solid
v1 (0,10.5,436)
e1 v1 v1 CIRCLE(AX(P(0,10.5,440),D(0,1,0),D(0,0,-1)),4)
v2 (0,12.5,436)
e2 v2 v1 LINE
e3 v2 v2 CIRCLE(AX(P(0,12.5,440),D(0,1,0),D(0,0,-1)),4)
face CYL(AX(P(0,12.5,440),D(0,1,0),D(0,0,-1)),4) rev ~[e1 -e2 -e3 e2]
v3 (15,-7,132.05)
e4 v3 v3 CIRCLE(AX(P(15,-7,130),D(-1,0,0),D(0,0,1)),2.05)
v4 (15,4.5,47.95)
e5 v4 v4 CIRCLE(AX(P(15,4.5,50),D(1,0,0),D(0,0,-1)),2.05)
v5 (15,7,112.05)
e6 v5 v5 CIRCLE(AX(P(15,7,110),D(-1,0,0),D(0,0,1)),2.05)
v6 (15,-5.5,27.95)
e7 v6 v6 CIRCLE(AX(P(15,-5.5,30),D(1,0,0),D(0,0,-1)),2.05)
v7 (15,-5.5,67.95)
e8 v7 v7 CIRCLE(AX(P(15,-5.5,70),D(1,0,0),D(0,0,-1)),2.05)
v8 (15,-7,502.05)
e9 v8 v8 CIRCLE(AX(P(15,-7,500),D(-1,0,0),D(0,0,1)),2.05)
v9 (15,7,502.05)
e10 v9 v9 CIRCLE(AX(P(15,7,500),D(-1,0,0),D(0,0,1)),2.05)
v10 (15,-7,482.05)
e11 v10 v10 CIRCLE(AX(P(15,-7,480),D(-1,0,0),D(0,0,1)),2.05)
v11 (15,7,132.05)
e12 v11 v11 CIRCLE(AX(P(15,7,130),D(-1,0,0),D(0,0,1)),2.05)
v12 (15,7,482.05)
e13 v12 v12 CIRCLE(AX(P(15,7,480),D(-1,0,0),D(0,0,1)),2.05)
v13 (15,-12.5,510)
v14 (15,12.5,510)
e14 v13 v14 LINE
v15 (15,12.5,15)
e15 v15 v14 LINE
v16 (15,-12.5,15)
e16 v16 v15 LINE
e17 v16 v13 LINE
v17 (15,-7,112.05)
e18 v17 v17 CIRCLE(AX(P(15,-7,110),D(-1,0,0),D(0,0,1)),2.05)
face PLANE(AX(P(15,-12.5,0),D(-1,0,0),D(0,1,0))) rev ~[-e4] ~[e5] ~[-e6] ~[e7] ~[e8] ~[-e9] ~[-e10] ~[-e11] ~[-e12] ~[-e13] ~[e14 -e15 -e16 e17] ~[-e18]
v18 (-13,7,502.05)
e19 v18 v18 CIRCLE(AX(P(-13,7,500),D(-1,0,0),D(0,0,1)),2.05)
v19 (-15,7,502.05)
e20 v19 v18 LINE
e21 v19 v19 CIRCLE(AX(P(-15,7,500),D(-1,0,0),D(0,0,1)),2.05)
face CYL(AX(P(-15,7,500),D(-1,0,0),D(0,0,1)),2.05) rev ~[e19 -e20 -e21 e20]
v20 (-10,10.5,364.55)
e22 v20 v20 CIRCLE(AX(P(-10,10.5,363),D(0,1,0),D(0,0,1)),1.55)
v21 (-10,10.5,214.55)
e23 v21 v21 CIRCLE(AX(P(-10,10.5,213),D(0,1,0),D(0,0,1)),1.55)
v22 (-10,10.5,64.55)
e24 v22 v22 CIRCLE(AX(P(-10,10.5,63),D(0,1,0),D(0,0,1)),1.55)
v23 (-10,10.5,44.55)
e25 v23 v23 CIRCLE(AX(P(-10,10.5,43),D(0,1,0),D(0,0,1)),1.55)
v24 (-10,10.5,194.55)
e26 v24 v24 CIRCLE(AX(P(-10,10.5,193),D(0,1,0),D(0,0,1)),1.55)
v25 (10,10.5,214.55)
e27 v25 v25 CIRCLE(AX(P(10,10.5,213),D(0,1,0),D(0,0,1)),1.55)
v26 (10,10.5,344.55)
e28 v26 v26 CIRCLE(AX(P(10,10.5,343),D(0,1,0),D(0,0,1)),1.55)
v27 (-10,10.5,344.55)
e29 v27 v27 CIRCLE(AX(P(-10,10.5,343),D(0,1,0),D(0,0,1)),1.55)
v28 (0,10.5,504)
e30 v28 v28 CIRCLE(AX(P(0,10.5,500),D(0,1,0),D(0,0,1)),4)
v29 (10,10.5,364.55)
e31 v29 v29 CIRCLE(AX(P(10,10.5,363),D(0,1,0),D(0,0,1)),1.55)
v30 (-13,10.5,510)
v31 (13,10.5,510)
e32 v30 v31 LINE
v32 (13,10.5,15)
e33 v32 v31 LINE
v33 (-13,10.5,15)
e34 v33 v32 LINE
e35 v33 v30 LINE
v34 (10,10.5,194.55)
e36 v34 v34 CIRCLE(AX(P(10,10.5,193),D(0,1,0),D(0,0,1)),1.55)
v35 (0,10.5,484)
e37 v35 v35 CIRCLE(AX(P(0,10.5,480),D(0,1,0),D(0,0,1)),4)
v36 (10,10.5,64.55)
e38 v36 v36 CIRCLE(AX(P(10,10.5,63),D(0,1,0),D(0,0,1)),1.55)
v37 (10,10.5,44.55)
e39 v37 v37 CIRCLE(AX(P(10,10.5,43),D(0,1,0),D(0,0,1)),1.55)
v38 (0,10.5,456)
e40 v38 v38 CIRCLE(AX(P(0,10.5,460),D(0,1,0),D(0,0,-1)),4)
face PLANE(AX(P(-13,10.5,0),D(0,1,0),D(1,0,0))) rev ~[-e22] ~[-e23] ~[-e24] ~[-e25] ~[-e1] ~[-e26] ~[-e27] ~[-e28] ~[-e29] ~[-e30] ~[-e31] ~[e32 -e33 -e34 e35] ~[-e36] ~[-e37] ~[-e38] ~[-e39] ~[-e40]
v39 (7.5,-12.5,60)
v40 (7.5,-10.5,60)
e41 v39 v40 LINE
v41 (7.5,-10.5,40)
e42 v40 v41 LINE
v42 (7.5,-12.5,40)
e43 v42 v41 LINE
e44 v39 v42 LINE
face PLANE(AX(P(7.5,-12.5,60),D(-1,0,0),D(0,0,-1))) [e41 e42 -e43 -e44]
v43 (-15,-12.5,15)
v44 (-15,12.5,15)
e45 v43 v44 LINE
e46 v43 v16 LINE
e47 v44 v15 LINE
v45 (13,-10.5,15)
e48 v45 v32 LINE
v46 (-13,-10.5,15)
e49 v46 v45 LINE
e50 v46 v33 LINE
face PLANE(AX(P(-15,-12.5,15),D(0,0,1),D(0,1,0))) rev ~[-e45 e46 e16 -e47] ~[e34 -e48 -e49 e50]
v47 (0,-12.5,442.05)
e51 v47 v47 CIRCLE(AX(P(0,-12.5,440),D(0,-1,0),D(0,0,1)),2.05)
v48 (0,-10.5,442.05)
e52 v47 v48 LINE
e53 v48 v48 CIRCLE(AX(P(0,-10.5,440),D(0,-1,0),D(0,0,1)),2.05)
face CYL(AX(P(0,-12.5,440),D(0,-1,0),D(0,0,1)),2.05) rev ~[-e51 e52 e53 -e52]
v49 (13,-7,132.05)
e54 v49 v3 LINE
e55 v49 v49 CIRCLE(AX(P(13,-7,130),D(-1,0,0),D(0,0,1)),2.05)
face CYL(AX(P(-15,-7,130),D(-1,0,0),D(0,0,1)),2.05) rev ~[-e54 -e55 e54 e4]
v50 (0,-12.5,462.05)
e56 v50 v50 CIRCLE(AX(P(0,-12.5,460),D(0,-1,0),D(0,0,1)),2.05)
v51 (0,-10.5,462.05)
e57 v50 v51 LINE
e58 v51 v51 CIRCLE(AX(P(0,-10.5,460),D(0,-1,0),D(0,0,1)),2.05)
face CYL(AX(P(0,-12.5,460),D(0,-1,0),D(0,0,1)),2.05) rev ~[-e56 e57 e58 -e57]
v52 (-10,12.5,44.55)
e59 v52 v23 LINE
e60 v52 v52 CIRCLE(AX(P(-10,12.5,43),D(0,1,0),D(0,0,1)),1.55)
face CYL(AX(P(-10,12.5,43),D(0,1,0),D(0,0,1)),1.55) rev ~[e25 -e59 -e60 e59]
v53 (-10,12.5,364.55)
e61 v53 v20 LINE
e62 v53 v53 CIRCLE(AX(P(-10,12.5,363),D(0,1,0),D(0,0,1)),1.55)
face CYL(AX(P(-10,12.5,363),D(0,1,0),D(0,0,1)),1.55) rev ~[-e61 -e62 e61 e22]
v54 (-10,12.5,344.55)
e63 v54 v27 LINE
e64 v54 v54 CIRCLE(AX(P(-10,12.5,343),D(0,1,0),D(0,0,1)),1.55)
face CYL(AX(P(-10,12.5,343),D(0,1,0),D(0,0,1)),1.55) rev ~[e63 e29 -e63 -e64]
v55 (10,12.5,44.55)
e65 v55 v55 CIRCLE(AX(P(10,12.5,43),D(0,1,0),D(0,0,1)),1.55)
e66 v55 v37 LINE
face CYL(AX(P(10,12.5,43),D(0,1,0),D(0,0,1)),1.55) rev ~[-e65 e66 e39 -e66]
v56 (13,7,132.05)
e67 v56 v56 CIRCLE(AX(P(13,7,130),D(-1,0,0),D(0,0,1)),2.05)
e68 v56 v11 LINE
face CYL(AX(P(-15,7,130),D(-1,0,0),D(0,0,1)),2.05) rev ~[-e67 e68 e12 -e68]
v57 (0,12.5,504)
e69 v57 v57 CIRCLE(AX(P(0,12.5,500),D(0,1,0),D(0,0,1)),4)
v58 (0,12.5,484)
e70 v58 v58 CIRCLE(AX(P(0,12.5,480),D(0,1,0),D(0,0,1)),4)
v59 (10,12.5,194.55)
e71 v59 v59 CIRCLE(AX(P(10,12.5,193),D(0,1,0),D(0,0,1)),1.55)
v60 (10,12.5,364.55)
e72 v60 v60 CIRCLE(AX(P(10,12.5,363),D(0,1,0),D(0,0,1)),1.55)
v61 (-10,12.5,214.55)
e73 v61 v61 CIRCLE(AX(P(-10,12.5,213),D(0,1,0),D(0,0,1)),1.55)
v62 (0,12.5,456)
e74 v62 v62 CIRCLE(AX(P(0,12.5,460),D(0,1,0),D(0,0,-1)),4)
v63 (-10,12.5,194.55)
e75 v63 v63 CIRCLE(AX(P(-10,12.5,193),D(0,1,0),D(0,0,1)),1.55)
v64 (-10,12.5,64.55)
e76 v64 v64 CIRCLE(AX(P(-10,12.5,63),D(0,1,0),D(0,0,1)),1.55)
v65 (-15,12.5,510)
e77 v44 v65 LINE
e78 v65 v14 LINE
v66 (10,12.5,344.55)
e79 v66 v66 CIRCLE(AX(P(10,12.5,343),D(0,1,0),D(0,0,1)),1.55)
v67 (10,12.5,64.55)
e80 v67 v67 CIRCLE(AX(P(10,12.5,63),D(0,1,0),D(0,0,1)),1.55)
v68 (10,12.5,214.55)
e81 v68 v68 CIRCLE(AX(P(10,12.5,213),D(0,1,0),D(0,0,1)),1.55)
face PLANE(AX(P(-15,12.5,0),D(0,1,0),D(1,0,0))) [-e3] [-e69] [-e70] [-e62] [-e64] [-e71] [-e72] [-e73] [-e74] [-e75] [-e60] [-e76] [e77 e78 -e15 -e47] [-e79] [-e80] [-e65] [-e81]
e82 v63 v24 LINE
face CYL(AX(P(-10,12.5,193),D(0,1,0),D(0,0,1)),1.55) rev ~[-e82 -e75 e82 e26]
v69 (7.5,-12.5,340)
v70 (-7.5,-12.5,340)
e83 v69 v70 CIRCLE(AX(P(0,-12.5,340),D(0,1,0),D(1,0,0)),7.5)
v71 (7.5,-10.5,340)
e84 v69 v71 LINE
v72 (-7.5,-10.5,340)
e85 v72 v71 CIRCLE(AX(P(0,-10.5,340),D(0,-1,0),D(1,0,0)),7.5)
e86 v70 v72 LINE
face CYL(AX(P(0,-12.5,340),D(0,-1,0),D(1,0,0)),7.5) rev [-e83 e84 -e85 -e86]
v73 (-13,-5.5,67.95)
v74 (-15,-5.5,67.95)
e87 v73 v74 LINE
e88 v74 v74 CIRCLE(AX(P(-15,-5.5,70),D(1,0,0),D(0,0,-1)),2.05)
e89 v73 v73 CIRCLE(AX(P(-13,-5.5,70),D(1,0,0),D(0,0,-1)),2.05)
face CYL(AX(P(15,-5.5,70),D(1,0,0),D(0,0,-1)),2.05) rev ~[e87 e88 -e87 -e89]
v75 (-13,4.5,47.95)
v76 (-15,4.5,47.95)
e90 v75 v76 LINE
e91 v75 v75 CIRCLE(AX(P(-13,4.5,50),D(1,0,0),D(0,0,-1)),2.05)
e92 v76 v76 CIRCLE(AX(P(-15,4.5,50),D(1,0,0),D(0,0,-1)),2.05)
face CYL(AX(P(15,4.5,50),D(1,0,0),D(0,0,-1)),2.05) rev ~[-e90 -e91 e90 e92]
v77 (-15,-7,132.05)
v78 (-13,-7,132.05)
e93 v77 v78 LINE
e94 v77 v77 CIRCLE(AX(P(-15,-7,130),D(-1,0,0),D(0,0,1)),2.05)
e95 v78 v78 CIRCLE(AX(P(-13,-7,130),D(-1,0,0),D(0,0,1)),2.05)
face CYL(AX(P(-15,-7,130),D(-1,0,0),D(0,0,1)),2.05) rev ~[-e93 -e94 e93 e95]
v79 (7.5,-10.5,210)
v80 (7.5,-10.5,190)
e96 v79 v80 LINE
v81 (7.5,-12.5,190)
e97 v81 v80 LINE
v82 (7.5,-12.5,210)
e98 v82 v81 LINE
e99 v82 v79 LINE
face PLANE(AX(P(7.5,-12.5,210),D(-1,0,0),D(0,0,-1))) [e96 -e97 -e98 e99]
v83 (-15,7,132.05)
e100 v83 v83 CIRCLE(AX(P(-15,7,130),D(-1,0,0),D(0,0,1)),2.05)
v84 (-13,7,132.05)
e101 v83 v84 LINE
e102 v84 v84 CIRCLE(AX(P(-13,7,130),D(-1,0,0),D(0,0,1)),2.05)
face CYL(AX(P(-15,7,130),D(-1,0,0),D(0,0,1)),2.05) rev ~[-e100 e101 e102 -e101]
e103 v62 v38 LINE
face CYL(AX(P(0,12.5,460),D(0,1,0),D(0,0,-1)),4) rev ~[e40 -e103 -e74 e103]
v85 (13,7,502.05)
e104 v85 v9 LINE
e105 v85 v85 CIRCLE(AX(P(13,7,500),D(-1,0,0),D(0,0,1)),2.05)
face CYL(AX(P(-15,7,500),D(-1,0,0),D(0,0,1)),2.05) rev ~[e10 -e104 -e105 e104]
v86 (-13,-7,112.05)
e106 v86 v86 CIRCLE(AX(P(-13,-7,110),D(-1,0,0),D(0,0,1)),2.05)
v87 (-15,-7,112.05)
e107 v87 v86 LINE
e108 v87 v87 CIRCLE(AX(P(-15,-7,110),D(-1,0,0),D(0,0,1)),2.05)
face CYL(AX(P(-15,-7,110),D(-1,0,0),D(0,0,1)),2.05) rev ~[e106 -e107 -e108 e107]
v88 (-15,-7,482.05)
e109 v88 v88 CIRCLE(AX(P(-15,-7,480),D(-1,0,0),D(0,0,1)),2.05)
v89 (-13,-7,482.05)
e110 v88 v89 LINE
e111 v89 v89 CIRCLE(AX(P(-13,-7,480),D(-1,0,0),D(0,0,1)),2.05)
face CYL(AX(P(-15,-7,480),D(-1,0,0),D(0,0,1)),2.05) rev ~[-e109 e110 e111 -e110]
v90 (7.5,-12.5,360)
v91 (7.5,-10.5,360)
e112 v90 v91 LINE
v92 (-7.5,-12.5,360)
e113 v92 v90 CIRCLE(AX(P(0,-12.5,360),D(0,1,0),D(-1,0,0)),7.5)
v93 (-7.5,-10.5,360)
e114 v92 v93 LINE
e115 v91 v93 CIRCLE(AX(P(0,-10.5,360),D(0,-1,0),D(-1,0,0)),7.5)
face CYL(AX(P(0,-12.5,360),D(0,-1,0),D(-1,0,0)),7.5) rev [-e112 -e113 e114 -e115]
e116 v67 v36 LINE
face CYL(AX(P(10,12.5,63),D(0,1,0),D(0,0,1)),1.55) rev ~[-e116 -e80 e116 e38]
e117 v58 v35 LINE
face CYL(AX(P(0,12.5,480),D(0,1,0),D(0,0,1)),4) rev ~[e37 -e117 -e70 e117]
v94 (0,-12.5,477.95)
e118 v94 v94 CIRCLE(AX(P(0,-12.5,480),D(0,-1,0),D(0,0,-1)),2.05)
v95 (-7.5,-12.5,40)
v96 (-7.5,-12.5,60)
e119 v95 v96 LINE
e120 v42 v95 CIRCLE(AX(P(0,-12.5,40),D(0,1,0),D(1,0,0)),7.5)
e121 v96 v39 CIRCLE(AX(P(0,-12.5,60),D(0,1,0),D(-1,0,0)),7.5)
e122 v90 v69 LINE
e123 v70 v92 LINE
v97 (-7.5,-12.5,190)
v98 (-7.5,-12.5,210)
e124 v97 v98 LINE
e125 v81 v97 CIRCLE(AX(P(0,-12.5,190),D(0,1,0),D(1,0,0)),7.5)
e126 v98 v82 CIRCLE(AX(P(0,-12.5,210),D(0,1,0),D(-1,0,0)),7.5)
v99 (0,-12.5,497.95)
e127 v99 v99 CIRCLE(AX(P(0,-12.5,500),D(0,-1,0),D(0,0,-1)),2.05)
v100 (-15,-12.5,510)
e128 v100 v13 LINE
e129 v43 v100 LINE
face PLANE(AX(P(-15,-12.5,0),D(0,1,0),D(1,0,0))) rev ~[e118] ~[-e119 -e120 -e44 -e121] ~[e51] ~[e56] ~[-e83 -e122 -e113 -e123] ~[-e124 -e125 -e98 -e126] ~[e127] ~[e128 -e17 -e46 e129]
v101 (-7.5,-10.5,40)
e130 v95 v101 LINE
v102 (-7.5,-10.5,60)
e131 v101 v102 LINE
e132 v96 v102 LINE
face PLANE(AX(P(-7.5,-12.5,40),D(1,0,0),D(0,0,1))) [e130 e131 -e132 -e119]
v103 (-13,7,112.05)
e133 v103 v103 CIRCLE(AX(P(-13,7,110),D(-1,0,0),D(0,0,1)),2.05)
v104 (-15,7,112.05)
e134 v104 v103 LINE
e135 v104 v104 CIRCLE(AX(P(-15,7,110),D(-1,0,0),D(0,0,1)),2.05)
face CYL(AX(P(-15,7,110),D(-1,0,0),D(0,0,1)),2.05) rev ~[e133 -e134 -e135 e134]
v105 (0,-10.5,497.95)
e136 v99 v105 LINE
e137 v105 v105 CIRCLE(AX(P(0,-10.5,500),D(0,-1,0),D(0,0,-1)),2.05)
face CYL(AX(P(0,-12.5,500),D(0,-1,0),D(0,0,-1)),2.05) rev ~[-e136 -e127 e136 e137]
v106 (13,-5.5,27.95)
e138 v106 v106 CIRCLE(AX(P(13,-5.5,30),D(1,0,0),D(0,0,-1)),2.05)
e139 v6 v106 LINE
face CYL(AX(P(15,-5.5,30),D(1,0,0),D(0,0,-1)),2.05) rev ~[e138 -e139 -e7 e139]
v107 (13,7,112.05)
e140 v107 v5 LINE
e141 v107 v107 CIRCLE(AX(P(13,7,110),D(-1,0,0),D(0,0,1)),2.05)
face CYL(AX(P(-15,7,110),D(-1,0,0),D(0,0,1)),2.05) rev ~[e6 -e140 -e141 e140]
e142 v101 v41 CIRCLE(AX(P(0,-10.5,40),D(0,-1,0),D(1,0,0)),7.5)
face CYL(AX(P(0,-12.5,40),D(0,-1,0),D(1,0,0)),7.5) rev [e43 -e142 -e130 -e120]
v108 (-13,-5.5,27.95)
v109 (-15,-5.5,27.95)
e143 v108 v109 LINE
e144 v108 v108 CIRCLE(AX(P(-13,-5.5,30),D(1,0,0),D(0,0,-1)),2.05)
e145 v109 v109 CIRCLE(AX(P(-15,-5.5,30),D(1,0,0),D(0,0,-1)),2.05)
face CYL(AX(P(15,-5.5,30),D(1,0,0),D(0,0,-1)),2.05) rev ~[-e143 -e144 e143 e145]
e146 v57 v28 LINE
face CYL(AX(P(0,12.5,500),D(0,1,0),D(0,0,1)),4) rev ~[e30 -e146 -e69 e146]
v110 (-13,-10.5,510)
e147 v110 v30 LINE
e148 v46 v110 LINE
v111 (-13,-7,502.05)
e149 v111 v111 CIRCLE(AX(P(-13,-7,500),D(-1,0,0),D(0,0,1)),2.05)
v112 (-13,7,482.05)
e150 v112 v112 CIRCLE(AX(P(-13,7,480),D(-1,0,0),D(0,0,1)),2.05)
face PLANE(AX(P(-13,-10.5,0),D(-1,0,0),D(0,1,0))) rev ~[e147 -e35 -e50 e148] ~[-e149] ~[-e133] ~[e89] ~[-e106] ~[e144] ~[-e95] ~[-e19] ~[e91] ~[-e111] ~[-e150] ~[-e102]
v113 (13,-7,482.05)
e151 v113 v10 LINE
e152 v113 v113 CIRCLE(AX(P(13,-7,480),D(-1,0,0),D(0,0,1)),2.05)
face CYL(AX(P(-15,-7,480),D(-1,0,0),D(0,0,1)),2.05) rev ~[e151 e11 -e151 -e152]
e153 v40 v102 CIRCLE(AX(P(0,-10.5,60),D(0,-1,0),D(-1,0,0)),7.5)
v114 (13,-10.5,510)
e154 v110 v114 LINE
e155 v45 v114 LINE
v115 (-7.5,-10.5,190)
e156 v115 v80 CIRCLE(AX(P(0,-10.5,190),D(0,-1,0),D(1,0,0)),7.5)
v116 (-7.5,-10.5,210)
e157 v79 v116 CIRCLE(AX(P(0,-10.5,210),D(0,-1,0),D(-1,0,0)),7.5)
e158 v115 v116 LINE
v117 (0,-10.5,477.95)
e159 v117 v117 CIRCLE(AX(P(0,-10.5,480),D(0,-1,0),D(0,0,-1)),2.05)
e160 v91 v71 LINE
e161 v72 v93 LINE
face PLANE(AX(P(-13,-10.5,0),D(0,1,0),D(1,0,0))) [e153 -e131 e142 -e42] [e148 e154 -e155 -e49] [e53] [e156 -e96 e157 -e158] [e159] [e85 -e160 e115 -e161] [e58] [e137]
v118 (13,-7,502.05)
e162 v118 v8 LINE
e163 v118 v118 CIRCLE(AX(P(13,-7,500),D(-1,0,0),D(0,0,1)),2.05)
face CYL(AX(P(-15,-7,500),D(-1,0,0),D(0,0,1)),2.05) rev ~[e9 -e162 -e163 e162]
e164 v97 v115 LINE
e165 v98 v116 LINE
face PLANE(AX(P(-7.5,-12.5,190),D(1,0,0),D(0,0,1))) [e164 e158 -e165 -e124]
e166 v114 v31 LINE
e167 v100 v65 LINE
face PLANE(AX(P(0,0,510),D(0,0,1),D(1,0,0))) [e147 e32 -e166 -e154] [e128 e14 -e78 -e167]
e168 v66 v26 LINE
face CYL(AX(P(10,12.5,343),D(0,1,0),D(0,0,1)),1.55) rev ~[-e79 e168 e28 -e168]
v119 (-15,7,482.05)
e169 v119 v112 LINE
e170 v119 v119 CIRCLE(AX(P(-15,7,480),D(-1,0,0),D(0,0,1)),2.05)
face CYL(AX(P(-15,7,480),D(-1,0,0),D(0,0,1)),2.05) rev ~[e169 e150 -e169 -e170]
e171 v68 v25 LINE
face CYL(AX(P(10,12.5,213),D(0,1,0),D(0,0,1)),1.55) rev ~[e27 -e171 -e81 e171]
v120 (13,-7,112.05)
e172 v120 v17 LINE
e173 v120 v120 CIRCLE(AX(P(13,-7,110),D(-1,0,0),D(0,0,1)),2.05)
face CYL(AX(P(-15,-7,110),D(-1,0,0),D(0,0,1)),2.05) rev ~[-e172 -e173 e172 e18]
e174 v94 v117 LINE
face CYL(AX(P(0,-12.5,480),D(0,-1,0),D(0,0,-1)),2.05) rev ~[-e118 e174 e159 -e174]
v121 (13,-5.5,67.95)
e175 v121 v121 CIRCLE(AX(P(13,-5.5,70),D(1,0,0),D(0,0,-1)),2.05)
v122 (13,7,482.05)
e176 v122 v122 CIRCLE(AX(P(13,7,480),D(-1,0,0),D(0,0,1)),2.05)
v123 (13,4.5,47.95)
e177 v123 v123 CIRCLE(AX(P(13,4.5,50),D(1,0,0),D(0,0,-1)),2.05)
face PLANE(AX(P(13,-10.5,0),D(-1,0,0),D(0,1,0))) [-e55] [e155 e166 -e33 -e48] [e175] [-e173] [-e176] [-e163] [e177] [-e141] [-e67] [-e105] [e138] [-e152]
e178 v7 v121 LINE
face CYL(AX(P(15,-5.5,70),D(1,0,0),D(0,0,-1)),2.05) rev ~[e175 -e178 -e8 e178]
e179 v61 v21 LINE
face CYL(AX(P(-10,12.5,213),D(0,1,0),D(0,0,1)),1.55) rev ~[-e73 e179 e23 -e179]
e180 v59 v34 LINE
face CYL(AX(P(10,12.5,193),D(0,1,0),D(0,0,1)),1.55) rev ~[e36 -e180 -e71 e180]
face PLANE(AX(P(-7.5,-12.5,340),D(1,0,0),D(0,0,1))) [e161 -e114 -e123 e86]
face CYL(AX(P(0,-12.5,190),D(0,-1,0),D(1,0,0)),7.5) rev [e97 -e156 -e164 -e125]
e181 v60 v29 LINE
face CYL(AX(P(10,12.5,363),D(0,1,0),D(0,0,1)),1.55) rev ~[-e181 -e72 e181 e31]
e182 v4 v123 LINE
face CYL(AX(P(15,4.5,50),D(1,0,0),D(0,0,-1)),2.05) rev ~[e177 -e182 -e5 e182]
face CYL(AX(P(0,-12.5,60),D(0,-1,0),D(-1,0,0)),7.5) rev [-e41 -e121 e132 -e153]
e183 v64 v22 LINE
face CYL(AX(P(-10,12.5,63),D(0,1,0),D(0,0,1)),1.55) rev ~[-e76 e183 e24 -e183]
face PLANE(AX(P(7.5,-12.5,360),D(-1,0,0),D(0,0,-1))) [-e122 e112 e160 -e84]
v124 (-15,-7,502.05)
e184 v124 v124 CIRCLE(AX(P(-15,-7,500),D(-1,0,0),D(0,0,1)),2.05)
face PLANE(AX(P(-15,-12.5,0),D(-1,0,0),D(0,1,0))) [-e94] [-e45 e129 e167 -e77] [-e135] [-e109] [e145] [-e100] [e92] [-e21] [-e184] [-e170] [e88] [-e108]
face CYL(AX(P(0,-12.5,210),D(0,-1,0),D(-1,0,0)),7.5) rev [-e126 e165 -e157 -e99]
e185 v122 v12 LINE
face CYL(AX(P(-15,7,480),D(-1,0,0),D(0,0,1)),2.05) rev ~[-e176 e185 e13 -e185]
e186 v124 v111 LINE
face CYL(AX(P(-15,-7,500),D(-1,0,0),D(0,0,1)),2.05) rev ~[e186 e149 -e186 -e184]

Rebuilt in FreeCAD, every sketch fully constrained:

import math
import FreeCAD as App
import Part
import Sketcher
from FreeCAD import Vector

doc = App.newDocument("Part")
body = doc.addObject("PartDesign::Body", "Body")

# Sketch on XY plane
sketch1 = doc.addObject("Sketcher::SketchObject", "Sketch")
body.addObject(sketch1)
sketch1.AttachmentSupport = (doc.XY_Plane, [""])
sketch1.MapMode = "FlatFace"
sketch1.addGeometry(Part.LineSegment(Vector(-15, 12, 0), Vector(-15, -12, 0)), False)
sketch1.addGeometry(Part.LineSegment(Vector(-15, -12, 0), Vector(15, -12, 0)), False)
sketch1.addGeometry(Part.LineSegment(Vector(15, -12, 0), Vector(15, 12, 0)), False)
sketch1.addGeometry(Part.LineSegment(Vector(15, 12, 0), Vector(-15, 12, 0)), False)
sketch1.addGeometry(Part.LineSegment(Vector(13, -10, 0), Vector(-13, -10, 0)), False)
sketch1.addGeometry(Part.LineSegment(Vector(-13, -10, 0), Vector(-13, 10, 0)), False)
sketch1.addGeometry(Part.LineSegment(Vector(-13, 10, 0), Vector(13, 10, 0)), False)
sketch1.addGeometry(Part.LineSegment(Vector(13, 10, 0), Vector(13, -10, 0)), False)
sketch1.addConstraint(Sketcher.Constraint("Coincident", 0, 2, 1, 1))
sketch1.addConstraint(Sketcher.Constraint("Coincident", 1, 2, 2, 1))
sketch1.addConstraint(Sketcher.Constraint("Coincident", 2, 2, 3, 1))
sketch1.addConstraint(Sketcher.Constraint("Coincident", 3, 2, 0, 1))
sketch1.addConstraint(Sketcher.Constraint("Coincident", 4, 2, 5, 1))
sketch1.addConstraint(Sketcher.Constraint("Coincident", 5, 2, 6, 1))
sketch1.addConstraint(Sketcher.Constraint("Coincident", 6, 2, 7, 1))
sketch1.addConstraint(Sketcher.Constraint("Coincident", 7, 2, 4, 1))
sketch1.addConstraint(Sketcher.Constraint("Vertical", 0))
sketch1.addConstraint(Sketcher.Constraint("Horizontal", 1))
sketch1.addConstraint(Sketcher.Constraint("Vertical", 2))
sketch1.addConstraint(Sketcher.Constraint("Horizontal", 3))
sketch1.addConstraint(Sketcher.Constraint("Horizontal", 4))
sketch1.addConstraint(Sketcher.Constraint("Vertical", 5))
sketch1.addConstraint(Sketcher.Constraint("Horizontal", 6))
sketch1.addConstraint(Sketcher.Constraint("Vertical", 7))
sketch1.addConstraint(Sketcher.Constraint("Symmetric", 0, 2, 2, 2, -1, 1))
sketch1.addConstraint(Sketcher.Constraint("Symmetric", 4, 2, 6, 2, -1, 1))
sketch1.addConstraint(Sketcher.Constraint("DistanceX", 1, 1, 1, 2, 30.0))
sketch1.addConstraint(Sketcher.Constraint("DistanceX", 4, 2, 4, 1, 26.0))
sketch1.addConstraint(Sketcher.Constraint("DistanceY", 0, 2, 0, 1, 25.0))
sketch1.addConstraint(Sketcher.Constraint("DistanceY", 5, 1, 5, 2, 21.0))
pad1 = doc.addObject("PartDesign::Pad", "Pad")
body.addObject(pad1)
pad1.Profile = sketch1
pad1.Length = 510

# Sketch on XZ plane
sketch2 = doc.addObject("Sketcher::SketchObject", "Sketch001")
body.addObject(sketch2)
sketch2.AttachmentSupport = (doc.XZ_Plane, [""])
sketch2.MapMode = "FlatFace"
sketch2.AttachmentOffset = App.Placement(Vector(0, 0, 12.5), App.Rotation())
sketch2.addGeometry(Part.LineSegment(Vector(-8, 60, 0), Vector(-8, 40, 0)), False)
sketch2.addGeometry(Part.ArcOfCircle(Part.Circle(Vector(0, 40, 0), Vector(0, 0, 1), 8), math.radians(180), math.radians(360)), False)
sketch2.addGeometry(Part.LineSegment(Vector(8, 40, 0), Vector(8, 60, 0)), False)
sketch2.addGeometry(Part.ArcOfCircle(Part.Circle(Vector(0, 60, 0), Vector(0, 0, 1), 8), math.radians(0), math.radians(180)), False)
sketch2.addConstraint(Sketcher.Constraint("Tangent", 0, 2, 1, 1))
sketch2.addConstraint(Sketcher.Constraint("Tangent", 1, 2, 2, 1))
sketch2.addConstraint(Sketcher.Constraint("Tangent", 2, 2, 3, 1))
sketch2.addConstraint(Sketcher.Constraint("Tangent", 3, 2, 0, 1))
sketch2.addConstraint(Sketcher.Constraint("Vertical", 0))
sketch2.addConstraint(Sketcher.Constraint("Vertical", 2))
sketch2.addConstraint(Sketcher.Constraint("PointOnObject", 1, 3, -2))
sketch2.addConstraint(Sketcher.Constraint("Radius", 1, 7.5))
sketch2.addConstraint(Sketcher.Constraint("DistanceY", 0, 2, 0, 1, 20.0))
sketch2.addConstraint(Sketcher.Constraint("DistanceY", -1, 1, 1, 3, 40.0))
pocket1 = doc.addObject("PartDesign::Pocket", "Pocket")
body.addObject(pocket1)
pocket1.Profile = sketch2
pocket1.Type = "UpToFirst"

# Sketch on XZ plane
sketch3 = doc.addObject("Sketcher::SketchObject", "Sketch002")
body.addObject(sketch3)
sketch3.AttachmentSupport = (doc.XZ_Plane, [""])
sketch3.MapMode = "FlatFace"
sketch3.AttachmentOffset = App.Placement(Vector(0, 0, 12.5), App.Rotation())
sketch3.addGeometry(Part.LineSegment(Vector(-8, 210, 0), Vector(-8, 190, 0)), False)
sketch3.addGeometry(Part.ArcOfCircle(Part.Circle(Vector(0, 190, 0), Vector(0, 0, 1), 8), math.radians(180), math.radians(360)), False)
sketch3.addGeometry(Part.LineSegment(Vector(8, 190, 0), Vector(8, 210, 0)), False)
sketch3.addGeometry(Part.ArcOfCircle(Part.Circle(Vector(0, 210, 0), Vector(0, 0, 1), 8), math.radians(0), math.radians(180)), False)
sketch3.addConstraint(Sketcher.Constraint("Tangent", 0, 2, 1, 1))
sketch3.addConstraint(Sketcher.Constraint("Tangent", 1, 2, 2, 1))
sketch3.addConstraint(Sketcher.Constraint("Tangent", 2, 2, 3, 1))
sketch3.addConstraint(Sketcher.Constraint("Tangent", 3, 2, 0, 1))
sketch3.addConstraint(Sketcher.Constraint("Vertical", 0))
sketch3.addConstraint(Sketcher.Constraint("Vertical", 2))
sketch3.addConstraint(Sketcher.Constraint("PointOnObject", 1, 3, -2))
sketch3.addConstraint(Sketcher.Constraint("Radius", 1, 7.5))
sketch3.addConstraint(Sketcher.Constraint("DistanceY", 0, 2, 0, 1, 20.0))
sketch3.addConstraint(Sketcher.Constraint("DistanceY", -1, 1, 1, 3, 190.0))
pocket2 = doc.addObject("PartDesign::Pocket", "Pocket001")
body.addObject(pocket2)
pocket2.Profile = sketch3
pocket2.Type = "UpToFirst"

# Sketch on XZ plane
sketch4 = doc.addObject("Sketcher::SketchObject", "Sketch003")
body.addObject(sketch4)
sketch4.AttachmentSupport = (doc.XZ_Plane, [""])
sketch4.MapMode = "FlatFace"
sketch4.AttachmentOffset = App.Placement(Vector(0, 0, 12.5), App.Rotation())
sketch4.addGeometry(Part.LineSegment(Vector(-8, 360, 0), Vector(-8, 340, 0)), False)
sketch4.addGeometry(Part.ArcOfCircle(Part.Circle(Vector(0, 340, 0), Vector(0, 0, 1), 8), math.radians(180), math.radians(360)), False)
sketch4.addGeometry(Part.LineSegment(Vector(8, 340, 0), Vector(8, 360, 0)), False)
sketch4.addGeometry(Part.ArcOfCircle(Part.Circle(Vector(0, 360, 0), Vector(0, 0, 1), 8), math.radians(0), math.radians(180)), False)
sketch4.addConstraint(Sketcher.Constraint("Tangent", 0, 2, 1, 1))
sketch4.addConstraint(Sketcher.Constraint("Tangent", 1, 2, 2, 1))
sketch4.addConstraint(Sketcher.Constraint("Tangent", 2, 2, 3, 1))
sketch4.addConstraint(Sketcher.Constraint("Tangent", 3, 2, 0, 1))
sketch4.addConstraint(Sketcher.Constraint("Vertical", 0))
sketch4.addConstraint(Sketcher.Constraint("Vertical", 2))
sketch4.addConstraint(Sketcher.Constraint("PointOnObject", 1, 3, -2))
sketch4.addConstraint(Sketcher.Constraint("Radius", 1, 7.5))
sketch4.addConstraint(Sketcher.Constraint("DistanceY", 0, 2, 0, 1, 20.0))
sketch4.addConstraint(Sketcher.Constraint("DistanceY", -1, 1, 1, 3, 340.0))
pocket3 = doc.addObject("PartDesign::Pocket", "Pocket002")
body.addObject(pocket3)
pocket3.Profile = sketch4
pocket3.Type = "UpToFirst"

# Sketch on YZ plane
sketch5 = doc.addObject("Sketcher::SketchObject", "Sketch004")
body.addObject(sketch5)
sketch5.AttachmentSupport = (doc.YZ_Plane, [""])
sketch5.MapMode = "FlatFace"
sketch5.AttachmentOffset = App.Placement(Vector(0, 0, 15), App.Rotation())
sketch5.addGeometry(Part.Circle(Vector(-5.5, 30, 0), Vector(0, 0, 1), 2), False)
sketch5.addGeometry(Part.Circle(Vector(4.5, 50, 0), Vector(0, 0, 1), 2), False)
sketch5.addGeometry(Part.Circle(Vector(-5.5, 70, 0), Vector(0, 0, 1), 2), False)
sketch5.addConstraint(Sketcher.Constraint("Equal", 0, 1))
sketch5.addConstraint(Sketcher.Constraint("Equal", 1, 2))
sketch5.addConstraint(Sketcher.Constraint("Vertical", 0, 3, 2, 3))
sketch5.addConstraint(Sketcher.Constraint("Diameter", 0, 4.1))
sketch5.addConstraint(Sketcher.Constraint("DistanceY", -1, 1, 0, 3, 30.0))
sketch5.addConstraint(Sketcher.Constraint("DistanceY", -1, 1, 1, 3, 50.0))
sketch5.addConstraint(Sketcher.Constraint("DistanceY", -1, 1, 2, 3, 70.0))
sketch5.addConstraint(Sketcher.Constraint("DistanceX", 0, 3, 1, 3, 10.0))
sketch5.addConstraint(Sketcher.Constraint("DistanceX", 0, 3, -1, 1, 5.5))
pocket4 = doc.addObject("PartDesign::Pocket", "Pocket003")
body.addObject(pocket4)
pocket4.Profile = sketch5
pocket4.Type = "ThroughAll"

# Sketch on XZ plane
sketch6 = doc.addObject("Sketcher::SketchObject", "Sketch005")
body.addObject(sketch6)
sketch6.AttachmentSupport = (doc.XZ_Plane, [""])
sketch6.MapMode = "FlatFace"
sketch6.AttachmentOffset = App.Placement(Vector(0, 0, 12.5), App.Rotation())
sketch6.addGeometry(Part.Circle(Vector(0, 480, 0), Vector(0, 0, 1), 2), False)
sketch6.addGeometry(Part.Circle(Vector(0, 500, 0), Vector(0, 0, 1), 2), False)
sketch6.addGeometry(Part.Circle(Vector(0, 440, 0), Vector(0, 0, 1), 2), False)
sketch6.addGeometry(Part.Circle(Vector(0, 460, 0), Vector(0, 0, 1), 2), False)
sketch6.addConstraint(Sketcher.Constraint("Equal", 0, 1))
sketch6.addConstraint(Sketcher.Constraint("Equal", 1, 2))
sketch6.addConstraint(Sketcher.Constraint("Equal", 2, 3))
sketch6.addConstraint(Sketcher.Constraint("PointOnObject", 0, 3, -2))
sketch6.addConstraint(Sketcher.Constraint("PointOnObject", 1, 3, -2))
sketch6.addConstraint(Sketcher.Constraint("PointOnObject", 2, 3, -2))
sketch6.addConstraint(Sketcher.Constraint("PointOnObject", 3, 3, -2))
sketch6.addConstraint(Sketcher.Constraint("Diameter", 0, 4.1))
sketch6.addConstraint(Sketcher.Constraint("DistanceY", -1, 1, 0, 3, 480.0))
sketch6.addConstraint(Sketcher.Constraint("DistanceY", -1, 1, 1, 3, 500.0))
sketch6.addConstraint(Sketcher.Constraint("DistanceY", -1, 1, 2, 3, 440.0))
sketch6.addConstraint(Sketcher.Constraint("DistanceY", -1, 1, 3, 3, 460.0))
pocket5 = doc.addObject("PartDesign::Pocket", "Pocket004")
body.addObject(pocket5)
pocket5.Profile = sketch6
pocket5.Length = 10

# Sketch on XZ plane
sketch7 = doc.addObject("Sketcher::SketchObject", "Sketch006")
body.addObject(sketch7)
sketch7.AttachmentSupport = (doc.XZ_Plane, [""])
sketch7.MapMode = "FlatFace"
sketch7.AttachmentOffset = App.Placement(Vector(0, 0, -12.5), App.Rotation())
sketch7.addGeometry(Part.Circle(Vector(0, 500, 0), Vector(0, 0, 1), 4), False)
sketch7.addGeometry(Part.Circle(Vector(0, 480, 0), Vector(0, 0, 1), 4), False)
sketch7.addGeometry(Part.Circle(Vector(0, 460, 0), Vector(0, 0, 1), 4), False)
sketch7.addGeometry(Part.Circle(Vector(0, 440, 0), Vector(0, 0, 1), 4), False)
sketch7.addConstraint(Sketcher.Constraint("Equal", 0, 1))
sketch7.addConstraint(Sketcher.Constraint("Equal", 1, 2))
sketch7.addConstraint(Sketcher.Constraint("Equal", 2, 3))
sketch7.addConstraint(Sketcher.Constraint("PointOnObject", 0, 3, -2))
sketch7.addConstraint(Sketcher.Constraint("PointOnObject", 1, 3, -2))
sketch7.addConstraint(Sketcher.Constraint("PointOnObject", 2, 3, -2))
sketch7.addConstraint(Sketcher.Constraint("PointOnObject", 3, 3, -2))
sketch7.addConstraint(Sketcher.Constraint("Diameter", 0, 8.0))
sketch7.addConstraint(Sketcher.Constraint("DistanceY", -1, 1, 0, 3, 500.0))
sketch7.addConstraint(Sketcher.Constraint("DistanceY", -1, 1, 1, 3, 480.0))
sketch7.addConstraint(Sketcher.Constraint("DistanceY", -1, 1, 2, 3, 460.0))
sketch7.addConstraint(Sketcher.Constraint("DistanceY", -1, 1, 3, 3, 440.0))
pocket6 = doc.addObject("PartDesign::Pocket", "Pocket005")
body.addObject(pocket6)
pocket6.Profile = sketch7
pocket6.Length = 10
pocket6.Reversed = True

# Sketch on YZ plane
sketch8 = doc.addObject("Sketcher::SketchObject", "Sketch007")
body.addObject(sketch8)
sketch8.AttachmentSupport = (doc.YZ_Plane, [""])
sketch8.MapMode = "FlatFace"
sketch8.AttachmentOffset = App.Placement(Vector(0, 0, -15), App.Rotation())
sketch8.addGeometry(Part.Circle(Vector(7, 480, 0), Vector(0, 0, 1), 2), False)
sketch8.addGeometry(Part.Circle(Vector(7, 500, 0), Vector(0, 0, 1), 2), False)
sketch8.addGeometry(Part.Circle(Vector(-7, 480, 0), Vector(0, 0, 1), 2), False)
sketch8.addGeometry(Part.Circle(Vector(-7, 500, 0), Vector(0, 0, 1), 2), False)
sketch8.addGeometry(Part.Circle(Vector(7, 110, 0), Vector(0, 0, 1), 2), False)
sketch8.addGeometry(Part.Circle(Vector(7, 130, 0), Vector(0, 0, 1), 2), False)
sketch8.addGeometry(Part.Circle(Vector(-7, 110, 0), Vector(0, 0, 1), 2), False)
sketch8.addGeometry(Part.Circle(Vector(-7, 130, 0), Vector(0, 0, 1), 2), False)
sketch8.addConstraint(Sketcher.Constraint("Equal", 0, 1))
sketch8.addConstraint(Sketcher.Constraint("Equal", 1, 2))
sketch8.addConstraint(Sketcher.Constraint("Equal", 2, 3))
sketch8.addConstraint(Sketcher.Constraint("Equal", 3, 4))
sketch8.addConstraint(Sketcher.Constraint("Equal", 4, 5))
sketch8.addConstraint(Sketcher.Constraint("Equal", 5, 6))
sketch8.addConstraint(Sketcher.Constraint("Equal", 6, 7))
sketch8.addConstraint(Sketcher.Constraint("Symmetric", 0, 3, 2, 3, -2))
sketch8.addConstraint(Sketcher.Constraint("Symmetric", 1, 3, 3, 3, -2))
sketch8.addConstraint(Sketcher.Constraint("Symmetric", 4, 3, 6, 3, -2))
sketch8.addConstraint(Sketcher.Constraint("Symmetric", 5, 3, 7, 3, -2))
sketch8.addConstraint(Sketcher.Constraint("Vertical", 0, 3, 1, 3))
sketch8.addConstraint(Sketcher.Constraint("Vertical", 1, 3, 4, 3))
sketch8.addConstraint(Sketcher.Constraint("Vertical", 4, 3, 5, 3))
sketch8.addConstraint(Sketcher.Constraint("Diameter", 0, 4.1))
sketch8.addConstraint(Sketcher.Constraint("DistanceX", -1, 1, 0, 3, 7.0))
sketch8.addConstraint(Sketcher.Constraint("DistanceY", -1, 1, 0, 3, 480.0))
sketch8.addConstraint(Sketcher.Constraint("DistanceY", -1, 1, 1, 3, 500.0))
sketch8.addConstraint(Sketcher.Constraint("DistanceY", -1, 1, 4, 3, 110.0))
sketch8.addConstraint(Sketcher.Constraint("DistanceY", -1, 1, 5, 3, 130.0))
pocket7 = doc.addObject("PartDesign::Pocket", "Pocket006")
body.addObject(pocket7)
pocket7.Profile = sketch8
pocket7.Length = 52
pocket7.Reversed = True

# Sketch on YZ plane
sketch9 = doc.addObject("Sketcher::SketchObject", "Sketch008")
body.addObject(sketch9)
sketch9.AttachmentSupport = (doc.YZ_Plane, [""])
sketch9.MapMode = "FlatFace"
sketch9.AttachmentOffset = App.Placement(Vector(0, 0, -15), App.Rotation())
sketch9.addGeometry(Part.LineSegment(Vector(12, 0, 0), Vector(-12, 0, 0)), False)
sketch9.addGeometry(Part.LineSegment(Vector(-12, 0, 0), Vector(-12, 15, 0)), False)
sketch9.addGeometry(Part.LineSegment(Vector(-12, 15, 0), Vector(12, 15, 0)), False)
sketch9.addGeometry(Part.LineSegment(Vector(12, 15, 0), Vector(12, 0, 0)), False)
sketch9.addConstraint(Sketcher.Constraint("Coincident", 0, 2, 1, 1))
sketch9.addConstraint(Sketcher.Constraint("Coincident", 1, 2, 2, 1))
sketch9.addConstraint(Sketcher.Constraint("Coincident", 2, 2, 3, 1))
sketch9.addConstraint(Sketcher.Constraint("Coincident", 3, 2, 0, 1))
sketch9.addConstraint(Sketcher.Constraint("Horizontal", 0))
sketch9.addConstraint(Sketcher.Constraint("Vertical", 1))
sketch9.addConstraint(Sketcher.Constraint("Horizontal", 2))
sketch9.addConstraint(Sketcher.Constraint("Vertical", 3))
sketch9.addConstraint(Sketcher.Constraint("Symmetric", 0, 2, 3, 2, -1, 1))
sketch9.addConstraint(Sketcher.Constraint("DistanceX", 0, 2, 0, 1, 25.0))
sketch9.addConstraint(Sketcher.Constraint("DistanceY", 1, 1, 1, 2, 15.0))
pocket8 = doc.addObject("PartDesign::Pocket", "Pocket007")
body.addObject(pocket8)
pocket8.Profile = sketch9
pocket8.Type = "ThroughAll"
pocket8.Reversed = True

# Sketch on XZ plane
sketch10 = doc.addObject("Sketcher::SketchObject", "Sketch009")
body.addObject(sketch10)
sketch10.AttachmentSupport = (doc.XZ_Plane, [""])
sketch10.MapMode = "FlatFace"
sketch10.AttachmentOffset = App.Placement(Vector(0, 0, -12.5), App.Rotation())
sketch10.addGeometry(Part.Circle(Vector(-10, 43, 0), Vector(0, 0, 1), 1.6), False)
sketch10.addConstraint(Sketcher.Constraint("Diameter", 0, 3.1))
sketch10.addConstraint(Sketcher.Constraint("DistanceX", 0, 3, -1, 1, 10.0))
sketch10.addConstraint(Sketcher.Constraint("DistanceY", -1, 1, 0, 3, 43.0))
pocket9 = doc.addObject("PartDesign::Pocket", "Pocket008")
body.addObject(pocket9)
pocket9.Profile = sketch10
pocket9.Type = "UpToFirst"
pocket9.Reversed = True

# Sketch on XZ plane
sketch11 = doc.addObject("Sketcher::SketchObject", "Sketch010")
body.addObject(sketch11)
sketch11.AttachmentSupport = (doc.XZ_Plane, [""])
sketch11.MapMode = "FlatFace"
sketch11.AttachmentOffset = App.Placement(Vector(0, 0, -12.5), App.Rotation())
sketch11.addGeometry(Part.Circle(Vector(10, 43, 0), Vector(0, 0, 1), 1.6), False)
sketch11.addConstraint(Sketcher.Constraint("Diameter", 0, 3.1))
sketch11.addConstraint(Sketcher.Constraint("DistanceX", -1, 1, 0, 3, 10.0))
sketch11.addConstraint(Sketcher.Constraint("DistanceY", -1, 1, 0, 3, 43.0))
pocket10 = doc.addObject("PartDesign::Pocket", "Pocket009")
body.addObject(pocket10)
pocket10.Profile = sketch11
pocket10.Type = "UpToFirst"
pocket10.Reversed = True

# Sketch on XZ plane
sketch12 = doc.addObject("Sketcher::SketchObject", "Sketch011")
body.addObject(sketch12)
sketch12.AttachmentSupport = (doc.XZ_Plane, [""])
sketch12.MapMode = "FlatFace"
sketch12.AttachmentOffset = App.Placement(Vector(0, 0, -12.5), App.Rotation())
sketch12.addGeometry(Part.Circle(Vector(-10, 63, 0), Vector(0, 0, 1), 1.6), False)
sketch12.addConstraint(Sketcher.Constraint("Diameter", 0, 3.1))
sketch12.addConstraint(Sketcher.Constraint("DistanceX", 0, 3, -1, 1, 10.0))
sketch12.addConstraint(Sketcher.Constraint("DistanceY", -1, 1, 0, 3, 63.0))
pocket11 = doc.addObject("PartDesign::Pocket", "Pocket010")
body.addObject(pocket11)
pocket11.Profile = sketch12
pocket11.Type = "UpToFirst"
pocket11.Reversed = True

# Sketch on XZ plane
sketch13 = doc.addObject("Sketcher::SketchObject", "Sketch012")
body.addObject(sketch13)
sketch13.AttachmentSupport = (doc.XZ_Plane, [""])
sketch13.MapMode = "FlatFace"
sketch13.AttachmentOffset = App.Placement(Vector(0, 0, -12.5), App.Rotation())
sketch13.addGeometry(Part.Circle(Vector(10, 63, 0), Vector(0, 0, 1), 1.6), False)
sketch13.addConstraint(Sketcher.Constraint("Diameter", 0, 3.1))
sketch13.addConstraint(Sketcher.Constraint("DistanceX", -1, 1, 0, 3, 10.0))
sketch13.addConstraint(Sketcher.Constraint("DistanceY", -1, 1, 0, 3, 63.0))
pocket12 = doc.addObject("PartDesign::Pocket", "Pocket011")
body.addObject(pocket12)
pocket12.Profile = sketch13
pocket12.Type = "UpToFirst"
pocket12.Reversed = True

# Sketch on XZ plane
sketch14 = doc.addObject("Sketcher::SketchObject", "Sketch013")
body.addObject(sketch14)
sketch14.AttachmentSupport = (doc.XZ_Plane, [""])
sketch14.MapMode = "FlatFace"
sketch14.AttachmentOffset = App.Placement(Vector(0, 0, -12.5), App.Rotation())
sketch14.addGeometry(Part.Circle(Vector(-10, 193, 0), Vector(0, 0, 1), 1.6), False)
sketch14.addConstraint(Sketcher.Constraint("Diameter", 0, 3.1))
sketch14.addConstraint(Sketcher.Constraint("DistanceX", 0, 3, -1, 1, 10.0))
sketch14.addConstraint(Sketcher.Constraint("DistanceY", -1, 1, 0, 3, 193.0))
pocket13 = doc.addObject("PartDesign::Pocket", "Pocket012")
body.addObject(pocket13)
pocket13.Profile = sketch14
pocket13.Type = "UpToFirst"
pocket13.Reversed = True

# Sketch on XZ plane
sketch15 = doc.addObject("Sketcher::SketchObject", "Sketch014")
body.addObject(sketch15)
sketch15.AttachmentSupport = (doc.XZ_Plane, [""])
sketch15.MapMode = "FlatFace"
sketch15.AttachmentOffset = App.Placement(Vector(0, 0, -12.5), App.Rotation())
sketch15.addGeometry(Part.Circle(Vector(-10, 213, 0), Vector(0, 0, 1), 1.6), False)
sketch15.addConstraint(Sketcher.Constraint("Diameter", 0, 3.1))
sketch15.addConstraint(Sketcher.Constraint("DistanceX", 0, 3, -1, 1, 10.0))
sketch15.addConstraint(Sketcher.Constraint("DistanceY", -1, 1, 0, 3, 213.0))
pocket14 = doc.addObject("PartDesign::Pocket", "Pocket013")
body.addObject(pocket14)
pocket14.Profile = sketch15
pocket14.Type = "UpToFirst"
pocket14.Reversed = True

# Sketch on XZ plane
sketch16 = doc.addObject("Sketcher::SketchObject", "Sketch015")
body.addObject(sketch16)
sketch16.AttachmentSupport = (doc.XZ_Plane, [""])
sketch16.MapMode = "FlatFace"
sketch16.AttachmentOffset = App.Placement(Vector(0, 0, -12.5), App.Rotation())
sketch16.addGeometry(Part.Circle(Vector(10, 193, 0), Vector(0, 0, 1), 1.6), False)
sketch16.addConstraint(Sketcher.Constraint("Diameter", 0, 3.1))
sketch16.addConstraint(Sketcher.Constraint("DistanceX", -1, 1, 0, 3, 10.0))
sketch16.addConstraint(Sketcher.Constraint("DistanceY", -1, 1, 0, 3, 193.0))
pocket15 = doc.addObject("PartDesign::Pocket", "Pocket014")
body.addObject(pocket15)
pocket15.Profile = sketch16
pocket15.Type = "UpToFirst"
pocket15.Reversed = True

# Sketch on XZ plane
sketch17 = doc.addObject("Sketcher::SketchObject", "Sketch016")
body.addObject(sketch17)
sketch17.AttachmentSupport = (doc.XZ_Plane, [""])
sketch17.MapMode = "FlatFace"
sketch17.AttachmentOffset = App.Placement(Vector(0, 0, -12.5), App.Rotation())
sketch17.addGeometry(Part.Circle(Vector(10, 213, 0), Vector(0, 0, 1), 1.6), False)
sketch17.addConstraint(Sketcher.Constraint("Diameter", 0, 3.1))
sketch17.addConstraint(Sketcher.Constraint("DistanceX", -1, 1, 0, 3, 10.0))
sketch17.addConstraint(Sketcher.Constraint("DistanceY", -1, 1, 0, 3, 213.0))
pocket16 = doc.addObject("PartDesign::Pocket", "Pocket015")
body.addObject(pocket16)
pocket16.Profile = sketch17
pocket16.Type = "UpToFirst"
pocket16.Reversed = True

# Sketch on XZ plane
sketch18 = doc.addObject("Sketcher::SketchObject", "Sketch017")
body.addObject(sketch18)
sketch18.AttachmentSupport = (doc.XZ_Plane, [""])
sketch18.MapMode = "FlatFace"
sketch18.AttachmentOffset = App.Placement(Vector(0, 0, -12.5), App.Rotation())
sketch18.addGeometry(Part.Circle(Vector(-10, 343, 0), Vector(0, 0, 1), 1.6), False)
sketch18.addConstraint(Sketcher.Constraint("Diameter", 0, 3.1))
sketch18.addConstraint(Sketcher.Constraint("DistanceX", 0, 3, -1, 1, 10.0))
sketch18.addConstraint(Sketcher.Constraint("DistanceY", -1, 1, 0, 3, 343.0))
pocket17 = doc.addObject("PartDesign::Pocket", "Pocket016")
body.addObject(pocket17)
pocket17.Profile = sketch18
pocket17.Type = "UpToFirst"
pocket17.Reversed = True

# Sketch on XZ plane
sketch19 = doc.addObject("Sketcher::SketchObject", "Sketch018")
body.addObject(sketch19)
sketch19.AttachmentSupport = (doc.XZ_Plane, [""])
sketch19.MapMode = "FlatFace"
sketch19.AttachmentOffset = App.Placement(Vector(0, 0, -12.5), App.Rotation())
sketch19.addGeometry(Part.Circle(Vector(-10, 363, 0), Vector(0, 0, 1), 1.6), False)
sketch19.addConstraint(Sketcher.Constraint("Diameter", 0, 3.1))
sketch19.addConstraint(Sketcher.Constraint("DistanceX", 0, 3, -1, 1, 10.0))
sketch19.addConstraint(Sketcher.Constraint("DistanceY", -1, 1, 0, 3, 363.0))
pocket18 = doc.addObject("PartDesign::Pocket", "Pocket017")
body.addObject(pocket18)
pocket18.Profile = sketch19
pocket18.Type = "UpToFirst"
pocket18.Reversed = True

# Sketch on XZ plane
sketch20 = doc.addObject("Sketcher::SketchObject", "Sketch019")
body.addObject(sketch20)
sketch20.AttachmentSupport = (doc.XZ_Plane, [""])
sketch20.MapMode = "FlatFace"
sketch20.AttachmentOffset = App.Placement(Vector(0, 0, -12.5), App.Rotation())
sketch20.addGeometry(Part.Circle(Vector(10, 343, 0), Vector(0, 0, 1), 1.6), False)
sketch20.addConstraint(Sketcher.Constraint("Diameter", 0, 3.1))
sketch20.addConstraint(Sketcher.Constraint("DistanceX", -1, 1, 0, 3, 10.0))
sketch20.addConstraint(Sketcher.Constraint("DistanceY", -1, 1, 0, 3, 343.0))
pocket19 = doc.addObject("PartDesign::Pocket", "Pocket018")
body.addObject(pocket19)
pocket19.Profile = sketch20
pocket19.Type = "UpToFirst"
pocket19.Reversed = True

# Sketch on XZ plane
sketch21 = doc.addObject("Sketcher::SketchObject", "Sketch020")
body.addObject(sketch21)
sketch21.AttachmentSupport = (doc.XZ_Plane, [""])
sketch21.MapMode = "FlatFace"
sketch21.AttachmentOffset = App.Placement(Vector(0, 0, -12.5), App.Rotation())
sketch21.addGeometry(Part.Circle(Vector(10, 363, 0), Vector(0, 0, 1), 1.6), False)
sketch21.addConstraint(Sketcher.Constraint("Diameter", 0, 3.1))
sketch21.addConstraint(Sketcher.Constraint("DistanceX", -1, 1, 0, 3, 10.0))
sketch21.addConstraint(Sketcher.Constraint("DistanceY", -1, 1, 0, 3, 363.0))
pocket20 = doc.addObject("PartDesign::Pocket", "Pocket019")
body.addObject(pocket20)
pocket20.Profile = sketch21
pocket20.Type = "UpToFirst"
pocket20.Reversed = True

doc.recompute()
